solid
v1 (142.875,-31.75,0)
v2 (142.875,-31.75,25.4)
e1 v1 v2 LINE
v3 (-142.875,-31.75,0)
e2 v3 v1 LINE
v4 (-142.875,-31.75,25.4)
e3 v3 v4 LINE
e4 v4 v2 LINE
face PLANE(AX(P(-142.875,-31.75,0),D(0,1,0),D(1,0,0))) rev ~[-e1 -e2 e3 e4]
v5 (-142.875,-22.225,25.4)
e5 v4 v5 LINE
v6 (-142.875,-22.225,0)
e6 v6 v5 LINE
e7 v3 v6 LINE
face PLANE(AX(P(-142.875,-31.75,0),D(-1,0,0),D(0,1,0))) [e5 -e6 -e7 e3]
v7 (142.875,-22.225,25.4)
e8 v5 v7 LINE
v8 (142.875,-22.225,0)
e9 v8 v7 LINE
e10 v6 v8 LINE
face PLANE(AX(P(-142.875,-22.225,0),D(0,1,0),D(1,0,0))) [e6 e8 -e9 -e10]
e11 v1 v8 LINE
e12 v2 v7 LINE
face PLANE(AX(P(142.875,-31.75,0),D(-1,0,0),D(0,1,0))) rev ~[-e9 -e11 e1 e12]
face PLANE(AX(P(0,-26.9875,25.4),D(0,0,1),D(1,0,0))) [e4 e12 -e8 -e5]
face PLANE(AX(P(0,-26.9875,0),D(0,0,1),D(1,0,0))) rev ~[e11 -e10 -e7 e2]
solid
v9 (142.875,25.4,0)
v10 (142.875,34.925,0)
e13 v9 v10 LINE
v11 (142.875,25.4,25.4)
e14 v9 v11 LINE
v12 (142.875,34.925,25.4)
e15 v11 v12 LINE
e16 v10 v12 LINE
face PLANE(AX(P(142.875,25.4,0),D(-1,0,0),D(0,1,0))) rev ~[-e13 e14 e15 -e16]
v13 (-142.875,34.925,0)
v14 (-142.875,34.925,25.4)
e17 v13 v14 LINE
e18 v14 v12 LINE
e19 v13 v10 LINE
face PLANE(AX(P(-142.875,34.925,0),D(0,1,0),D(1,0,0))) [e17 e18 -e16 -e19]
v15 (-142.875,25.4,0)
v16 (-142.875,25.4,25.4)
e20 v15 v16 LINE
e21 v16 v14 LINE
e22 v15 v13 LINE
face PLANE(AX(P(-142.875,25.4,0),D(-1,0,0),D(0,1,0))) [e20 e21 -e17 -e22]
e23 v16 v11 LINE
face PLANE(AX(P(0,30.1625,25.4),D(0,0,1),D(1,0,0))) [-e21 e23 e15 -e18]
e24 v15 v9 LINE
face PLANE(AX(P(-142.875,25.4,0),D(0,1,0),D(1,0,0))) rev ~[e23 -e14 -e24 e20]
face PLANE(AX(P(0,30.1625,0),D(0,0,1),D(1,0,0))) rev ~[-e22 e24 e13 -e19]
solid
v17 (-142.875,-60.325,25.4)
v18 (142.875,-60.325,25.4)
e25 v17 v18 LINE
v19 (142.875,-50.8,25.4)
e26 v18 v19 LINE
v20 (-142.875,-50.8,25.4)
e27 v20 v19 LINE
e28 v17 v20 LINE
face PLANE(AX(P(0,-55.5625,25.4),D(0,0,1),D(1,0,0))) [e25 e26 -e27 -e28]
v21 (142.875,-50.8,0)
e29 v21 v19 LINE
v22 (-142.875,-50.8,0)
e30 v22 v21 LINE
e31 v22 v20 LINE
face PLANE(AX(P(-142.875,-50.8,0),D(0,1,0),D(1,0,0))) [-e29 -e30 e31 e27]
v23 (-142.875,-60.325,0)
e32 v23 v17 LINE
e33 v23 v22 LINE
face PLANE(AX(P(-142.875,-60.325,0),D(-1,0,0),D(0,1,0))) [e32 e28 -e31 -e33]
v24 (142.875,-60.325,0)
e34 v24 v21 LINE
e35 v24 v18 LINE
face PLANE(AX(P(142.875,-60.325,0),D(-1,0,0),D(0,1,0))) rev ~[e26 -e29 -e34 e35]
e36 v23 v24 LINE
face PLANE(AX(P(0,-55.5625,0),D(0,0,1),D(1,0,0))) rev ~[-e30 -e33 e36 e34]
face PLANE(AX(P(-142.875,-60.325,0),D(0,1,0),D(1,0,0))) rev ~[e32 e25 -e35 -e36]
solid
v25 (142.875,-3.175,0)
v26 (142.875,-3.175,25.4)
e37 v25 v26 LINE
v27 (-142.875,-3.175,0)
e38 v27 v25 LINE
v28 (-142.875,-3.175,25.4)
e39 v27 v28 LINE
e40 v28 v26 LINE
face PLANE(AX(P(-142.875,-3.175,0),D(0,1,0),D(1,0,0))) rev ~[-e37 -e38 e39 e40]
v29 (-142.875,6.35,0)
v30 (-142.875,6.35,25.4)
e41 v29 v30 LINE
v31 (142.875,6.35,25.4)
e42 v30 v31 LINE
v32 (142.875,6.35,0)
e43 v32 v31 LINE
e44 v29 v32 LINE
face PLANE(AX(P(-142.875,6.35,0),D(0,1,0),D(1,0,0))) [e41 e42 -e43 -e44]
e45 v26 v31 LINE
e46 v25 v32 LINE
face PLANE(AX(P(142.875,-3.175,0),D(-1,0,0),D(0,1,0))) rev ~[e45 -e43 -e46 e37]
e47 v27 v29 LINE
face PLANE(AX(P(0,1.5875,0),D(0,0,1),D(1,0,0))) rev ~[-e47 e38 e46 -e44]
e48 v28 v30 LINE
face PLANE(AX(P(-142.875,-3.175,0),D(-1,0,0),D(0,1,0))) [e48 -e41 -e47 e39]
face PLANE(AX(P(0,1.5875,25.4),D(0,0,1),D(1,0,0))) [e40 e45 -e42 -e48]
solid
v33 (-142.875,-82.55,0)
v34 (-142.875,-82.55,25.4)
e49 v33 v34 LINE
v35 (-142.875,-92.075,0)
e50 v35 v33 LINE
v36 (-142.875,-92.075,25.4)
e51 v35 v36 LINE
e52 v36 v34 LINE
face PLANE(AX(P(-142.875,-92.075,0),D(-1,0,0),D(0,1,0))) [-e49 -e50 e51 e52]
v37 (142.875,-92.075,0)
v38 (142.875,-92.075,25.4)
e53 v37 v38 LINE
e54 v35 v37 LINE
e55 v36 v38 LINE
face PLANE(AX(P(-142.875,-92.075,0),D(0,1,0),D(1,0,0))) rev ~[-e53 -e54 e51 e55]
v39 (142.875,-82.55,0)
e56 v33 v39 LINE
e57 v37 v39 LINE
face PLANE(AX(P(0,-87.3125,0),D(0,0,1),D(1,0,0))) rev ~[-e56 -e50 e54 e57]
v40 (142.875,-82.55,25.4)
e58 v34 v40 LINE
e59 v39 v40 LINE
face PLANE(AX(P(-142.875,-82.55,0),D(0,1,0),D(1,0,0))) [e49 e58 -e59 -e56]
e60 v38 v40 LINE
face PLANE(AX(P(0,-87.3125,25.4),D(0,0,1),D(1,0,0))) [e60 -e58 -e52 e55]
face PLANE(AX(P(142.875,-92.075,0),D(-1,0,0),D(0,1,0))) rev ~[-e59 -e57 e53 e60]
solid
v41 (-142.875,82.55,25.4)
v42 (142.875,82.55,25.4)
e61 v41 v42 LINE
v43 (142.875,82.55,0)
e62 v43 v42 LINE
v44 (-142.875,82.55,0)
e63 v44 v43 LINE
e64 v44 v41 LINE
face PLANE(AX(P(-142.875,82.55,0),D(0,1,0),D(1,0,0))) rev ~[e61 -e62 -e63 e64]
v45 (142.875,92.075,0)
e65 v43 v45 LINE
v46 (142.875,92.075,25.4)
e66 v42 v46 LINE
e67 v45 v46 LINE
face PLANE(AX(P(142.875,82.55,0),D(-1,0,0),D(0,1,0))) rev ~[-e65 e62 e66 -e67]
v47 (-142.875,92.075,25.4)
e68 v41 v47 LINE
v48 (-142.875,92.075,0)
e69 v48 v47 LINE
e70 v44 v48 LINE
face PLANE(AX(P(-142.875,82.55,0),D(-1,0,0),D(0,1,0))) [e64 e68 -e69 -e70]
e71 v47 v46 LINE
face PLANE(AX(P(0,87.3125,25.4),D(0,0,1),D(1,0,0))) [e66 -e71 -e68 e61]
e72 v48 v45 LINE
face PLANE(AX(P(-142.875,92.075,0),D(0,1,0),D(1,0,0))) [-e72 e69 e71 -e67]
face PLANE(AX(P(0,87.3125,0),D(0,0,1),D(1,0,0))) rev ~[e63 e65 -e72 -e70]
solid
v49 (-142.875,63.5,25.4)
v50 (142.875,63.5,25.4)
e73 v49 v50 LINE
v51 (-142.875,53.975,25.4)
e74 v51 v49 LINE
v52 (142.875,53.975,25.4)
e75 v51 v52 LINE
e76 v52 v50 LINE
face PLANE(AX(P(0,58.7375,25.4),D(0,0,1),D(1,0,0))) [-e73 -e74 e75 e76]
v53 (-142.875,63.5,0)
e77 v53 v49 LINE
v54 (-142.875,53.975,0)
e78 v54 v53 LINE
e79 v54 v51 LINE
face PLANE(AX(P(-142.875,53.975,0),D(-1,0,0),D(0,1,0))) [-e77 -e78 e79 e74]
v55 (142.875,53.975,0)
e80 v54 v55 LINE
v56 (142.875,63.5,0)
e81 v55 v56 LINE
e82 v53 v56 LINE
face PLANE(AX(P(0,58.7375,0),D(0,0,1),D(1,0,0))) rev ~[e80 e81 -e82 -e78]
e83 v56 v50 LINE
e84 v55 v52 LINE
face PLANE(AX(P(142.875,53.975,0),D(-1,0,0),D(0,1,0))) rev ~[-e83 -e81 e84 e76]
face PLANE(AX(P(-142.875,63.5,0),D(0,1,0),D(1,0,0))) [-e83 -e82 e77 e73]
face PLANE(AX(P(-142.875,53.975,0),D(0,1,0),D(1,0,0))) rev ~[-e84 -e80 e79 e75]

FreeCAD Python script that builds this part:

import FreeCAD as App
import Part
import Sketcher
from FreeCAD import Vector
Q = App.Units.Quantity


def add_polygon(sketch, points):
    """Adds a closed chain of lines whose ends are joined by coincident constraints."""
    first, n = sketch.GeometryCount, len(points)
    for a, b in zip(points, points[1:] + points[:1]):
        sketch.addGeometry(Part.LineSegment(App.Vector(*a, 0), App.Vector(*b, 0)), False)
    for i in range(n):
        sketch.addConstraint(Sketcher.Constraint("Coincident", first + i, 2, first + (i + 1) % n, 1))

doc = App.newDocument("Part")
body = doc.addObject("PartDesign::Body", "Body")
body.AllowCompound = True

# Sketch on XY plane
sketch1 = doc.addObject("Sketcher::SketchObject", "Sketch")
body.addObject(sketch1)
sketch1.AttachmentSupport = (doc.XY_Plane, [""])
sketch1.MapMode = "FlatFace"
add_polygon(sketch1, [(-143, 92), (-143, 83), (143, 83), (143, 92)])  # lines 0-3
add_polygon(sketch1, [(-143, 64), (-143, 54), (143, 54), (143, 64)])  # lines 4-7
add_polygon(sketch1, [(-143, 35), (-143, 25), (143, 25), (143, 35)])  # lines 8-11
add_polygon(sketch1, [(-143, 6), (-143, -3), (143, -3), (143, 6)])  # lines 12-15
add_polygon(sketch1, [(-143, -22), (-143, -32), (143, -32), (143, -22)])  # lines 16-19
add_polygon(sketch1, [(-143, -83), (-143, -92), (143, -92), (143, -83)])  # lines 20-23
add_polygon(sketch1, [(-143, -51), (-143, -60), (143, -60), (143, -51)])  # lines 24-27
sketch1.addConstraint([
    Sketcher.Constraint("Vertical", 0),
    Sketcher.Constraint("Horizontal", 1),
    Sketcher.Constraint("Vertical", 2),
    Sketcher.Constraint("Horizontal", 3),
    Sketcher.Constraint("Vertical", 4),
    Sketcher.Constraint("Horizontal", 5),
    Sketcher.Constraint("Vertical", 6),
    Sketcher.Constraint("Horizontal", 7),
    Sketcher.Constraint("Vertical", 8),
    Sketcher.Constraint("Horizontal", 9),
    Sketcher.Constraint("Vertical", 10),
    Sketcher.Constraint("Horizontal", 11),
    Sketcher.Constraint("Vertical", 12),
    Sketcher.Constraint("Horizontal", 13),
    Sketcher.Constraint("Vertical", 14),
    Sketcher.Constraint("Horizontal", 15),
    Sketcher.Constraint("Vertical", 16),
    Sketcher.Constraint("Horizontal", 17),
    Sketcher.Constraint("Vertical", 18),
    Sketcher.Constraint("Horizontal", 19),
    Sketcher.Constraint("Vertical", 20),
    Sketcher.Constraint("Horizontal", 21),
    Sketcher.Constraint("Vertical", 22),
    Sketcher.Constraint("Horizontal", 23),
    Sketcher.Constraint("Vertical", 24),
    Sketcher.Constraint("Horizontal", 25),
    Sketcher.Constraint("Vertical", 26),
    Sketcher.Constraint("Horizontal", 27),
    Sketcher.Constraint("Symmetric", 2, 2, 20, 2, -1, 1),
    Sketcher.Constraint("Symmetric", 0, 2, 22, 2, -1, 1),
    Sketcher.Constraint("Vertical", 3, 2, 4, 2),
    Sketcher.Constraint("Vertical", 2, 2, 5, 2),
    Sketcher.Constraint("Vertical", 7, 2, 8, 2),
    Sketcher.Constraint("Vertical", 6, 2, 9, 2),
    Sketcher.Constraint("Vertical", 11, 2, 12, 2),
    Sketcher.Constraint("Vertical", 10, 2, 13, 2),
    Sketcher.Constraint("Vertical", 15, 2, 16, 2),
    Sketcher.Constraint("Vertical", 14, 2, 17, 2),
    Sketcher.Constraint("Vertical", 19, 2, 20, 2),
    Sketcher.Constraint("Vertical", 23, 2, 24, 2),
    Sketcher.Constraint("Vertical", 22, 2, 25, 2),
    Sketcher.Constraint("Equal", 2, 4),
    Sketcher.Constraint("Equal", 6, 8),
    Sketcher.Constraint("Equal", 10, 12),
    Sketcher.Constraint("Equal", 14, 16),
    Sketcher.Constraint("Equal", 22, 24),
    Sketcher.Constraint("DistanceY", -1, 1, 8, 2, Q("1 in")),
    Sketcher.Constraint("DistanceY", 26, 2, -1, 1, Q("2 in")),
    Sketcher.Constraint("DistanceY", 22, 2, 17, 2, Q("2 in")),
    Sketcher.Constraint("DistanceX", 1, 1, 1, 2, Q("11.25 in")),
    Sketcher.Constraint("DistanceY", -1, 1, 6, 2, Q("2.5 in")),
    Sketcher.Constraint("DistanceY", 4, 2, 3, 2, Q("1.5 in")),
    Sketcher.Constraint("DistanceY", 12, 2, 11, 2, Q("1.5 in")),
    Sketcher.Constraint("DistanceY", 24, 2, 19, 2, Q("1.5 in")),
])
pad1 = doc.addObject("PartDesign::Pad", "Pad")
body.addObject(pad1)
pad1.Profile = sketch1
pad1.Length = Q("1 in")

doc.recompute()
